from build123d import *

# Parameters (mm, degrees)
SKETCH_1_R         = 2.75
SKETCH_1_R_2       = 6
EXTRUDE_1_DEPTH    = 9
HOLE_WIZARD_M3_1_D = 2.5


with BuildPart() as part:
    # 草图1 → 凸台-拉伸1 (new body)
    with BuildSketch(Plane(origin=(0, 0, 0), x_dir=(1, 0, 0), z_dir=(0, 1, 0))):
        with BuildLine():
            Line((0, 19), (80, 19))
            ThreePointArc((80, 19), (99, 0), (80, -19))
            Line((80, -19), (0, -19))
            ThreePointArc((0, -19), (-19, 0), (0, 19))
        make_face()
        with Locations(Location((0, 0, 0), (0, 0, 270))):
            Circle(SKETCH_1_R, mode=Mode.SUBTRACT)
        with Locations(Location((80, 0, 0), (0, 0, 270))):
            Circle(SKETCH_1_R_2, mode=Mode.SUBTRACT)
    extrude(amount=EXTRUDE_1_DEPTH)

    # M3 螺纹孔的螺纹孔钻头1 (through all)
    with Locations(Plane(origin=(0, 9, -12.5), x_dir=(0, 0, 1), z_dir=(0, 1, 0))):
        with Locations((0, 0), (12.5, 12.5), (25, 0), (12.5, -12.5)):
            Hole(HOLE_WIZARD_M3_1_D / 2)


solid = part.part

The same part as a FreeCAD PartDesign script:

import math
import FreeCAD as App
import Part
import Sketcher

V = App.Vector

doc = App.newDocument("Part")
body = doc.addObject("PartDesign::Body", "Body")

# Sketch on XZ plane
sketch1 = body.newObject("Sketcher::SketchObject", "Sketch")
sketch1.AttachmentSupport = (doc.getObject("XZ_Plane"), [""])
sketch1.MapMode = "FlatFace"
sketch1.addGeometry([
    Part.LineSegment(V(80, -19, 0), V(0, -19, 0)),  # 0
    Part.ArcOfCircle(Part.Circle(V(0, 0, 0), V(0, 0, 1), 19), math.radians(90), math.radians(270)),  # 1
    Part.LineSegment(V(0, 19, 0), V(80, 19, 0)),  # 2
    Part.ArcOfCircle(Part.Circle(V(80, 0, 0), V(0, 0, 1), 19), math.radians(-90), math.radians(90)),  # 3
    Part.Circle(V(80, 0, 0), V(0, 0, 1), 6),  # 4
    Part.Circle(V(0, 0, 0), V(0, 0, 1), 2.8),  # 5
], False)
sketch1.addConstraint([
    Sketcher.Constraint("Tangent", 0, 2, 1, 2),
    Sketcher.Constraint("Tangent", 1, 1, 2, 1),
    Sketcher.Constraint("Tangent", 2, 2, 3, 2),
    Sketcher.Constraint("Tangent", 3, 1, 0, 1),
    Sketcher.Constraint("Horizontal", 0),
    Sketcher.Constraint("Horizontal", 2),
    Sketcher.Constraint("Coincident", 1, 3, -1, 1),
    Sketcher.Constraint("Coincident", 5, 3, -1, 1),
    Sketcher.Constraint("Coincident", 4, 3, 3, 3),
    Sketcher.Constraint("Diameter", 4, 12.0),
    Sketcher.Constraint("Radius", 1, 19.0),
    Sketcher.Constraint("Diameter", 5, 5.5),
    Sketcher.Constraint("DistanceX", 0, 2, 0, 1, 80.0),
])
pad1 = body.newObject("PartDesign::Pad", "Pad")
pad1.Profile = sketch1
pad1.Length = 9
pad1.Reversed = True

# Sketch on XZ plane
sketch2 = body.newObject("Sketcher::SketchObject", "Sketch001")
sketch2.AttachmentSupport = (doc.getObject("XZ_Plane"), [""])
sketch2.MapMode = "FlatFace"
sketch2.AttachmentOffset = App.Placement(V(0, 0, -9), App.Rotation())
sketch2.addGeometry([
    Part.Circle(V(0, -12.5, 0), V(0, 0, 1), 1.2),
    Part.Circle(V(12.5, 0, 0), V(0, 0, 1), 1.2),
    Part.Circle(V(0, 12.5, 0), V(0, 0, 1), 1.2),
    Part.Circle(V(-12.5, 0, 0), V(0, 0, 1), 1.2),
], False)
sketch2.addConstraint([
    Sketcher.Constraint("Equal", 0, 1),
    Sketcher.Constraint("Equal", 1, 2),
    Sketcher.Constraint("Equal", 2, 3),
    Sketcher.Constraint("Symmetric", 0, 3, 2, 3, -1, 1),
    Sketcher.Constraint("Symmetric", 1, 3, 3, 3, -1, 1),
    Sketcher.Constraint("PointOnObject", 0, 3, -2),
    Sketcher.Constraint("PointOnObject", 1, 3, -1),
    Sketcher.Constraint("Diameter", 0, 2.5),
    Sketcher.Constraint("DistanceY", 0, 3, 2, 3, 25.0),
    Sketcher.Constraint("DistanceX", 3, 3, 1, 3, 25.0),
])
doc.recompute()
hole = body.newObject("PartDesign::Hole", "Hole")
hole.Profile = sketch2
hole.ThreadType = "None"
hole.Diameter = 2.5
hole.DepthType = "ThroughAll"
hole.Reversed = True

doc.recompute()
